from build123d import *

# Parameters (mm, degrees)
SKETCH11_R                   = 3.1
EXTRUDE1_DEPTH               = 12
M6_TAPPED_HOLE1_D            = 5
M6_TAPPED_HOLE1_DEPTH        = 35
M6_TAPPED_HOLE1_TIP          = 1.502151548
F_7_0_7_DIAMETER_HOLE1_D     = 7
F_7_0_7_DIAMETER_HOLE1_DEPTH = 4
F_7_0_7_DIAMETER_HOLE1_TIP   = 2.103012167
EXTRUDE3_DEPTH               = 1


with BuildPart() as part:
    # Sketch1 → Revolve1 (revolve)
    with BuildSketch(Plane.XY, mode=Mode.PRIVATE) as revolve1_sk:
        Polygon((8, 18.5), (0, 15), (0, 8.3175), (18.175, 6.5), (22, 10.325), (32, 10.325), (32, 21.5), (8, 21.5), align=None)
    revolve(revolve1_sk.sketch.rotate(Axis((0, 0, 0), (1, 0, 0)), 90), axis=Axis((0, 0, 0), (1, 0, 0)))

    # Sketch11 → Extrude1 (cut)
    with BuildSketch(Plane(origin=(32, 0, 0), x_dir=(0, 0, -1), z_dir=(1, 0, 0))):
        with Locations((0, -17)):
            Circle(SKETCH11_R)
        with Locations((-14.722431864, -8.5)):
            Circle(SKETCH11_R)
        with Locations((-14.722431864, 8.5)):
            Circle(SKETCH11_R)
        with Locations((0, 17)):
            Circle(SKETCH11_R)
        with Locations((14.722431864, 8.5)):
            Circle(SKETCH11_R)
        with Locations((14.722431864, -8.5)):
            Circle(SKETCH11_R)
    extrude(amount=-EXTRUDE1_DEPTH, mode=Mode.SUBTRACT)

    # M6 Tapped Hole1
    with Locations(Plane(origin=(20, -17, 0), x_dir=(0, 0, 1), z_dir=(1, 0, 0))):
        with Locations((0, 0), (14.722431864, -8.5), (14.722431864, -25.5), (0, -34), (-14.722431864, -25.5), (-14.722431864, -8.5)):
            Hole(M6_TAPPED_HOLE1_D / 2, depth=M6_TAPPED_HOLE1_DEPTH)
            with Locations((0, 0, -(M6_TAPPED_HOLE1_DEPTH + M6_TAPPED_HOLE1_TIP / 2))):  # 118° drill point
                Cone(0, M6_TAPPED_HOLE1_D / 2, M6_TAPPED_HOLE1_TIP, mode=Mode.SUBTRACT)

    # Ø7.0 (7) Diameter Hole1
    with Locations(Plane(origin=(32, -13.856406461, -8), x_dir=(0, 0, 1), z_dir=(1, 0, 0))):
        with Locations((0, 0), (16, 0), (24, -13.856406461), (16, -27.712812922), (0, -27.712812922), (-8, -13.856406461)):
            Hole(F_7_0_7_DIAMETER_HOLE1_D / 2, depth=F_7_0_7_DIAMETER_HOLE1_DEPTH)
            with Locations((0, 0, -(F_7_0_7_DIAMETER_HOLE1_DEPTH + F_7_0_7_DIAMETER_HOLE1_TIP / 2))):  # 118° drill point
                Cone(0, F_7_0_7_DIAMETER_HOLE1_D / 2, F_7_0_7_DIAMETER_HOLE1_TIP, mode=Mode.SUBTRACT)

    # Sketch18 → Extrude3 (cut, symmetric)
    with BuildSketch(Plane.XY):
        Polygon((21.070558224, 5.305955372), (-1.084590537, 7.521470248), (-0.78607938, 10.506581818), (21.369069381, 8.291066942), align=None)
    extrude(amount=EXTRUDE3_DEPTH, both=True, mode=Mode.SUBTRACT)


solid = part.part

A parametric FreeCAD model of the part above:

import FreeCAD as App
import Part
import Sketcher
from FreeCAD import Vector
Q = App.Units.Quantity

doc = App.newDocument("Part")
body = doc.addObject("PartDesign::Body", "Body")

sketch1 = body.newObject("Sketcher::SketchObject", "Sketch")
sketch1.AttachmentSupport = (doc.getObject("XY_Plane"), [""])
sketch1.MapMode = "FlatFace"
sketch1.addGeometry([
    Part.LineSegment(Vector(8, 18.5, 0), Vector(0, 15, 0)),
    Part.LineSegment(Vector(0, 15, 0), Vector(0, 8.3175, 0)),
    Part.LineSegment(Vector(0, 8.3175, 0), Vector(18.175, 6.5, 0)),
    Part.LineSegment(Vector(18.175, 6.5, 0), Vector(22, 10.325, 0)),
    Part.LineSegment(Vector(22, 10.325, 0), Vector(32, 10.325, 0)),
    Part.LineSegment(Vector(32, 10.325, 0), Vector(32, 21.5, 0)),
    Part.LineSegment(Vector(32, 21.5, 0), Vector(8, 21.5, 0)),
    Part.LineSegment(Vector(8, 21.5, 0), Vector(8, 18.5, 0)),
], False)
sketch1.addConstraint([
    Sketcher.Constraint("Coincident", 0, 2, 1, 1),
    Sketcher.Constraint("Coincident", 1, 2, 2, 1),
    Sketcher.Constraint("Coincident", 2, 2, 3, 1),
    Sketcher.Constraint("Coincident", 3, 2, 4, 1),
    Sketcher.Constraint("Coincident", 4, 2, 5, 1),
    Sketcher.Constraint("Coincident", 5, 2, 6, 1),
    Sketcher.Constraint("Coincident", 6, 2, 7, 1),
    Sketcher.Constraint("Coincident", 7, 2, 0, 1),
    Sketcher.Constraint("Vertical", 1),
    Sketcher.Constraint("Horizontal", 4),
    Sketcher.Constraint("Vertical", 5),
    Sketcher.Constraint("Horizontal", 6),
    Sketcher.Constraint("Vertical", 7),
    Sketcher.Constraint("PointOnObject", 0, 2, -2),
    Sketcher.Constraint("DistanceX", 4, 1, 4, 2, 10.0),
    Sketcher.Constraint("DistanceX", 6, 2, 6, 1, 24.0),
    Sketcher.Constraint("DistanceY", 7, 2, 7, 1, 3.0),
    Sketcher.Constraint("Angle", 3, Q("45 deg")),
    Sketcher.Constraint("DistanceY", -1, 1, 0, 2, 15.0),
    Sketcher.Constraint("DistanceX", -1, 1, 3, 2, 22.0),
    Sketcher.Constraint("DistanceY", 2, 2, 5, 2, 15.0),
    Sketcher.Constraint("DistanceY", -1, 1, 2, 2, 6.5),
    Sketcher.Constraint("DistanceY", 5, 1, 5, 2, 11.175),
    Sketcher.Constraint("DistanceY", 1, 2, 1, 1, 6.6825),
])
revolution = body.newObject("PartDesign::Revolution", "Revolution")
revolution.Profile = sketch1
revolution.ReferenceAxis = (sketch1, ["H_Axis"])
revolution.Angle = 360

sketch2 = body.newObject("Sketcher::SketchObject", "Sketch001")
sketch2.AttachmentSupport = (doc.getObject("YZ_Plane"), [""])
sketch2.MapMode = "FlatFace"
sketch2.AttachmentOffset = App.Placement(Vector(0, 0, 32), App.Rotation())
sketch2.addGeometry([
    Part.Circle(Vector(-17, 0, 0), Vector(0, 0, 1), 3.1),
    Part.Circle(Vector(-8.5, 14.722432, 0), Vector(0, 0, 1), 3.1),
    Part.Circle(Vector(8.5, 14.722432, 0), Vector(0, 0, 1), 3.1),
    Part.Circle(Vector(17, 0, 0), Vector(0, 0, 1), 3.1),
    Part.Circle(Vector(8.5, -14.722432, 0), Vector(0, 0, 1), 3.1),
    Part.Circle(Vector(-8.5, -14.722432, 0), Vector(0, 0, 1), 3.1),
], False)
sketch2.addConstraint([
    Sketcher.Constraint("Equal", 0, 1),
    Sketcher.Constraint("Equal", 1, 2),
    Sketcher.Constraint("Equal", 2, 3),
    Sketcher.Constraint("Equal", 3, 4),
    Sketcher.Constraint("Equal", 4, 5),
    Sketcher.Constraint("Symmetric", 0, 3, 3, 3, -1, 1),
    Sketcher.Constraint("Symmetric", 1, 3, 4, 3, -1, 1),
    Sketcher.Constraint("Symmetric", 2, 3, 5, 3, -1, 1),
    Sketcher.Constraint("Symmetric", 1, 3, 2, 3, -2),
    Sketcher.Constraint("PointOnObject", 0, 3, -1),
    Sketcher.Constraint("Diameter", 0, 6.2),
    Sketcher.Constraint("DistanceX", 0, 3, -1, 1, 17.0),
    Sketcher.Constraint("DistanceX", 1, 3, 2, 3, 17.0),
    Sketcher.Constraint("DistanceY", -1, 1, 1, 3, 14.722432),
])
pocket1 = body.newObject("PartDesign::Pocket", "Pocket")
pocket1.Profile = sketch2
pocket1.Length = 12

sketch3 = body.newObject("Sketcher::SketchObject", "Sketch002")
sketch3.AttachmentSupport = (doc.getObject("YZ_Plane"), [""])
sketch3.MapMode = "FlatFace"
sketch3.AttachmentOffset = App.Placement(Vector(0, 0, 20), App.Rotation())
sketch3.addGeometry([
    Part.Circle(Vector(-17, 0, 0), Vector(0, 0, 1), 2.5),
    Part.Circle(Vector(-8.5, 14.722432, 0), Vector(0, 0, 1), 2.5),
    Part.Circle(Vector(8.5, 14.722432, 0), Vector(0, 0, 1), 2.5),
    Part.Circle(Vector(17, 0, 0), Vector(0, 0, 1), 2.5),
    Part.Circle(Vector(8.5, -14.722432, 0), Vector(0, 0, 1), 2.5),
    Part.Circle(Vector(-8.5, -14.722432, 0), Vector(0, 0, 1), 2.5),
], False)
sketch3.addConstraint([
    Sketcher.Constraint("Equal", 0, 1),
    Sketcher.Constraint("Equal", 1, 2),
    Sketcher.Constraint("Equal", 2, 3),
    Sketcher.Constraint("Equal", 3, 4),
    Sketcher.Constraint("Equal", 4, 5),
    Sketcher.Constraint("Symmetric", 0, 3, 3, 3, -1, 1),
    Sketcher.Constraint("Symmetric", 1, 3, 4, 3, -1, 1),
    Sketcher.Constraint("Symmetric", 2, 3, 5, 3, -1, 1),
    Sketcher.Constraint("Symmetric", 1, 3, 2, 3, -2),
    Sketcher.Constraint("PointOnObject", 0, 3, -1),
    Sketcher.Constraint("Diameter", 0, 5.0),
    Sketcher.Constraint("DistanceX", 0, 3, -1, 1, 17.0),
    Sketcher.Constraint("DistanceX", 1, 3, 2, 3, 17.0),
    Sketcher.Constraint("DistanceY", -1, 1, 1, 3, 14.722432),
])
doc.recompute()
hole = body.newObject("PartDesign::Hole", "Hole")
hole.Profile = sketch3
hole.ThreadType = "None"
hole.Diameter = 5
hole.DepthType = "Dimension"
hole.Depth = 35
hole.DrillPoint = "Angled"
hole.DrillPointAngle = 118

sketch4 = body.newObject("Sketcher::SketchObject", "Sketch003")
sketch4.AttachmentSupport = (doc.getObject("YZ_Plane"), [""])
sketch4.MapMode = "FlatFace"
sketch4.AttachmentOffset = App.Placement(Vector(0, 0, 32), App.Rotation())
sketch4.addGeometry([
    Part.Circle(Vector(-13.856406, -8, 0), Vector(0, 0, 1), 3.5),
    Part.Circle(Vector(-13.856406, 8, 0), Vector(0, 0, 1), 3.5),
    Part.Circle(Vector(0, 16, 0), Vector(0, 0, 1), 3.5),
    Part.Circle(Vector(13.856406, 8, 0), Vector(0, 0, 1), 3.5),
    Part.Circle(Vector(13.856406, -8, 0), Vector(0, 0, 1), 3.5),
    Part.Circle(Vector(0, -16, 0), Vector(0, 0, 1), 3.5),
], False)
sketch4.addConstraint([
    Sketcher.Constraint("Equal", 0, 1),
    Sketcher.Constraint("Equal", 1, 2),
    Sketcher.Constraint("Equal", 2, 3),
    Sketcher.Constraint("Equal", 3, 4),
    Sketcher.Constraint("Equal", 4, 5),
    Sketcher.Constraint("Symmetric", 0, 3, 3, 3, -1, 1),
    Sketcher.Constraint("Symmetric", 1, 3, 4, 3, -1, 1),
    Sketcher.Constraint("Symmetric", 2, 3, 5, 3, -1, 1),
    Sketcher.Constraint("Symmetric", 1, 3, 3, 3, -2),
    Sketcher.Constraint("PointOnObject", 2, 3, -2),
    Sketcher.Constraint("Diameter", 0, 7.0),
    Sketcher.Constraint("DistanceY", 0, 3, -1, 1, 8.0),
    Sketcher.Constraint("DistanceY", -1, 1, 2, 3, 16.0),
    Sketcher.Constraint("DistanceX", 0, 3, -1, 1, 13.856406),
])
doc.recompute()
hole2 = body.newObject("PartDesign::Hole", "Hole001")
hole2.Profile = sketch4
hole2.ThreadType = "None"
hole2.Diameter = 7
hole2.DepthType = "Dimension"
hole2.Depth = 4
hole2.DrillPoint = "Angled"
hole2.DrillPointAngle = 118

sketch5 = body.newObject("Sketcher::SketchObject", "Sketch004")
sketch5.AttachmentSupport = (doc.getObject("XY_Plane"), [""])
sketch5.MapMode = "FlatFace"
sketch5.addGeometry([
    Part.LineSegment(Vector(-1.084591, 7.52147, 0), Vector(21.070558, 5.305955, 0)),
    Part.LineSegment(Vector(21.070558, 5.305955, 0), Vector(21.369069, 8.291067, 0)),
    Part.LineSegment(Vector(21.369069, 8.291067, 0), Vector(-0.786079, 10.506582, 0)),
    Part.LineSegment(Vector(-0.786079, 10.506582, 0), Vector(-1.084591, 7.52147, 0)),
], False)
sketch5.addConstraint([
    Sketcher.Constraint("Coincident", 0, 2, 1, 1),
    Sketcher.Constraint("Coincident", 1, 2, 2, 1),
    Sketcher.Constraint("Coincident", 2, 2, 3, 1),
    Sketcher.Constraint("Coincident", 3, 2, 0, 1),
    Sketcher.Constraint("Perpendicular", 0, 1),
    Sketcher.Constraint("Perpendicular", 1, 2),
    Sketcher.Constraint("Perpendicular", 2, 3),
    Sketcher.Constraint("Distance", 1, 3.0),
    Sketcher.Constraint("Distance", 0, 22.265649),
    Sketcher.Constraint("DistanceX", -1, 1, 0, 2, 21.070558),
    Sketcher.Constraint("DistanceX", -1, 1, 1, 2, 21.369069),
    Sketcher.Constraint("DistanceY", -1, 1, 2, 2, 10.506582),
])
pocket2 = body.newObject("PartDesign::Pocket", "Pocket001")
pocket2.Profile = sketch5
pocket2.Length = 2
pocket2.Midplane = True

doc.recompute()
